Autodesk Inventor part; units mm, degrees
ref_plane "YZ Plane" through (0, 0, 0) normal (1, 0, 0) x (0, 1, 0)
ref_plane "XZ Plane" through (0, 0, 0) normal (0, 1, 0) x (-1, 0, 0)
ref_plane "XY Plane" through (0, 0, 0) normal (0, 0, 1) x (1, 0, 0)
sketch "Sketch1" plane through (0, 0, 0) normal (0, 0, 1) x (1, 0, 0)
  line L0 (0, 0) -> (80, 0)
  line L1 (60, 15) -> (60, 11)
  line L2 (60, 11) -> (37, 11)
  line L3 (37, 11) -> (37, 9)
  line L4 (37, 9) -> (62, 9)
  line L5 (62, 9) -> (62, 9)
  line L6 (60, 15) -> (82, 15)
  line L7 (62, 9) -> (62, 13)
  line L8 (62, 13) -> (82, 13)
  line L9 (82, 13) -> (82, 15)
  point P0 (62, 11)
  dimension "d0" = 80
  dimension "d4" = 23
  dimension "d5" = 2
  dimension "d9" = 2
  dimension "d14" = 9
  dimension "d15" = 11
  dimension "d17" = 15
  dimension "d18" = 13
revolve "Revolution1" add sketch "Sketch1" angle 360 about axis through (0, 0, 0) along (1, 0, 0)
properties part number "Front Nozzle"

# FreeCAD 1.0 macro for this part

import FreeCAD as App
import Part
import Sketcher
Q = App.Units.Quantity

doc = App.newDocument("Part")
body = doc.addObject("PartDesign::Body", "Body")

sketch1 = doc.addObject("Sketcher::SketchObject", "Sketch")
body.addObject(sketch1)
sketch1.AttachmentSupport = (doc.XY_Plane, [""])
sketch1.MapMode = "FlatFace"
sketch1.addGeometry(Part.LineSegment(App.Vector(82, 15, 0), App.Vector(60, 15, 0)), False)
sketch1.addGeometry(Part.LineSegment(App.Vector(60, 15, 0), App.Vector(60, 11, 0)), False)
sketch1.addGeometry(Part.LineSegment(App.Vector(60, 11, 0), App.Vector(37, 11, 0)), False)
sketch1.addGeometry(Part.LineSegment(App.Vector(37, 11, 0), App.Vector(37, 9, 0)), False)
sketch1.addGeometry(Part.LineSegment(App.Vector(37, 9, 0), App.Vector(62, 9, 0)), False)
sketch1.addGeometry(Part.LineSegment(App.Vector(62, 9, 0), App.Vector(62, 13, 0)), False)
sketch1.addGeometry(Part.LineSegment(App.Vector(62, 13, 0), App.Vector(82, 13, 0)), False)
sketch1.addGeometry(Part.LineSegment(App.Vector(82, 13, 0), App.Vector(82, 15, 0)), False)
sketch1.addConstraint(Sketcher.Constraint("Coincident", 0, 2, 1, 1))
sketch1.addConstraint(Sketcher.Constraint("Coincident", 1, 2, 2, 1))
sketch1.addConstraint(Sketcher.Constraint("Coincident", 2, 2, 3, 1))
sketch1.addConstraint(Sketcher.Constraint("Coincident", 3, 2, 4, 1))
sketch1.addConstraint(Sketcher.Constraint("Coincident", 4, 2, 5, 1))
sketch1.addConstraint(Sketcher.Constraint("Coincident", 5, 2, 6, 1))
sketch1.addConstraint(Sketcher.Constraint("Coincident", 6, 2, 7, 1))
sketch1.addConstraint(Sketcher.Constraint("Coincident", 7, 2, 0, 1))
sketch1.addConstraint(Sketcher.Constraint("Horizontal", 0))
sketch1.addConstraint(Sketcher.Constraint("Vertical", 1))
sketch1.addConstraint(Sketcher.Constraint("Horizontal", 2))
sketch1.addConstraint(Sketcher.Constraint("Vertical", 3))
sketch1.addConstraint(Sketcher.Constraint("Horizontal", 4))
sketch1.addConstraint(Sketcher.Constraint("Vertical", 5))
sketch1.addConstraint(Sketcher.Constraint("Horizontal", 6))
sketch1.addConstraint(Sketcher.Constraint("Vertical", 7))
sketch1.addConstraint(Sketcher.Constraint("Equal", 1, 5))
sketch1.addConstraint(Sketcher.Constraint("DistanceX", 2, 2, 2, 1, Q("23 mm")))
sketch1.addConstraint(Sketcher.Constraint("DistanceY", 3, 2, 3, 1, Q("2 mm")))
sketch1.addConstraint(Sketcher.Constraint("DistanceY", -1, 1, 0, 2, Q("15 mm")))
sketch1.addConstraint(Sketcher.Constraint("DistanceY", -1, 1, 1, 2, Q("11 mm")))
sketch1.addConstraint(Sketcher.Constraint("DistanceX", 1, 2, 4, 2, Q("2 mm")))
sketch1.addConstraint(Sketcher.Constraint("DistanceX", 0, 2, 0, 1, Q("22 mm")))
sketch1.addConstraint(Sketcher.Constraint("DistanceX", -1, 1, 0, 2, Q("60 mm")))
revolution = doc.addObject("PartDesign::Revolution", "Revolution")
body.addObject(revolution)
revolution.Profile = sketch1
revolution.ReferenceAxis = (sketch1, ["H_Axis"])
revolution.Angle = 360

doc.recompute()
